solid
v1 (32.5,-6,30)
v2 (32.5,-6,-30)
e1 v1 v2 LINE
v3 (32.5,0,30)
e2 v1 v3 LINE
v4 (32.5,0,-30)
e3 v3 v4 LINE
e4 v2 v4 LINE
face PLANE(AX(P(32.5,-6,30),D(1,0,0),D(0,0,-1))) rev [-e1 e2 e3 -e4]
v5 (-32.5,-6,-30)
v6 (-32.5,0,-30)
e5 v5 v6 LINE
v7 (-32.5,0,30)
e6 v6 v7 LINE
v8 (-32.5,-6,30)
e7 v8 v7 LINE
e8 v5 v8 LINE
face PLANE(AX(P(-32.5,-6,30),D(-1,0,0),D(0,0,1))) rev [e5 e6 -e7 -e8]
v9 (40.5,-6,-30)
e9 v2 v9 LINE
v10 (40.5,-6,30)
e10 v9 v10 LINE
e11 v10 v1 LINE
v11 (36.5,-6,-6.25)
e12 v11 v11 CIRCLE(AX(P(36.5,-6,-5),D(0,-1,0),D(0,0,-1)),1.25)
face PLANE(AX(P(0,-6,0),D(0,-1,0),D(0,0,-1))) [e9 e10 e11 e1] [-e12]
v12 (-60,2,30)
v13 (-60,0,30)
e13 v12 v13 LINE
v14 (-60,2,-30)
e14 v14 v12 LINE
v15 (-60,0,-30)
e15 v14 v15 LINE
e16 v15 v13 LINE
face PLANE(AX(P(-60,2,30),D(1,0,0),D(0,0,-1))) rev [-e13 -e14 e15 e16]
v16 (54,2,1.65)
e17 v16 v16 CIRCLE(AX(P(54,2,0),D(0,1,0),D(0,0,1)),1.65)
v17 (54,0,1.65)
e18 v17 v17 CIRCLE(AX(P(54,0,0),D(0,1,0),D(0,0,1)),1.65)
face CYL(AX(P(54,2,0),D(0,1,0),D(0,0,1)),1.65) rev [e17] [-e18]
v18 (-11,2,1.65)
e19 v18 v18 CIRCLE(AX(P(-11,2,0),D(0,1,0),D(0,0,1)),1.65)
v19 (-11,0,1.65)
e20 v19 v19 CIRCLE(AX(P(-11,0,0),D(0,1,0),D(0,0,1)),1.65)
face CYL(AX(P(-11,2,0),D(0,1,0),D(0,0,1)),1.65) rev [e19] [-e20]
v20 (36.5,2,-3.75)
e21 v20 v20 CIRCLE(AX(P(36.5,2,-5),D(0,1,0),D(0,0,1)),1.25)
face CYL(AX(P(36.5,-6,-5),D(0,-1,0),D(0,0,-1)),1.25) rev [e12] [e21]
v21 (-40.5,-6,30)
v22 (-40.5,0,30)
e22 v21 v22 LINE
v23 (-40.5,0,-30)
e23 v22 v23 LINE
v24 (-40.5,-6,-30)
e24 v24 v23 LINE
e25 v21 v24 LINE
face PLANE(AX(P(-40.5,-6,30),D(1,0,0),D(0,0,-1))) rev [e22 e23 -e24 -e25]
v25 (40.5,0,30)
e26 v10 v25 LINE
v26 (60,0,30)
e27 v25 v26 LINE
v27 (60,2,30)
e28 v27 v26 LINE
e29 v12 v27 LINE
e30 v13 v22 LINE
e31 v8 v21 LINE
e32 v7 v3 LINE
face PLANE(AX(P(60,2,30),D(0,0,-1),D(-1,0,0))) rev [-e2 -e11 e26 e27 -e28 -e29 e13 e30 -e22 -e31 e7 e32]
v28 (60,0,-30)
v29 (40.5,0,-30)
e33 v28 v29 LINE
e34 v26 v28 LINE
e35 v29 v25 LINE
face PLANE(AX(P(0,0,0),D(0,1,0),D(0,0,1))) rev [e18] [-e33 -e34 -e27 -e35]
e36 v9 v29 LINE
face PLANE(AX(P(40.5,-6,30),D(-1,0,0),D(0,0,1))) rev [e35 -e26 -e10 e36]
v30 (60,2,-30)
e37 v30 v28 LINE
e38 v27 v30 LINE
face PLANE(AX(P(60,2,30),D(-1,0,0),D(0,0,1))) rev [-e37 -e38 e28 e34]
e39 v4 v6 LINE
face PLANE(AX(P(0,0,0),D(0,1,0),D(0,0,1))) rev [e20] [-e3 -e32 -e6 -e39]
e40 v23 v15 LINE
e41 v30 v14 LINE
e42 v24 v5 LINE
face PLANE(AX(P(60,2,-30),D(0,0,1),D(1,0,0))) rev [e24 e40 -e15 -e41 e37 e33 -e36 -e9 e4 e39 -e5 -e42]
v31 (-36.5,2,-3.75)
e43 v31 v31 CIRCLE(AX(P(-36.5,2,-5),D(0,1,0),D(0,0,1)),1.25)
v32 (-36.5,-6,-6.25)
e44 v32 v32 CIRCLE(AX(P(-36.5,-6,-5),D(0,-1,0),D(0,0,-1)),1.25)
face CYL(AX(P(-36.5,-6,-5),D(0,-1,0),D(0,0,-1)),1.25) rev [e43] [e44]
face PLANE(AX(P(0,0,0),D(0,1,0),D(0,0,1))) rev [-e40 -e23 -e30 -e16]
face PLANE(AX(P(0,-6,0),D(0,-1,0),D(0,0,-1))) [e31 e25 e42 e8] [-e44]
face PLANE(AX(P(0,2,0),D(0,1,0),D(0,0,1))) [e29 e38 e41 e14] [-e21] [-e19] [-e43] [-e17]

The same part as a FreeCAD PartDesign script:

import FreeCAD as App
import Part
import Sketcher

V = App.Vector
Q = App.Units.Quantity


def add_polygon(sketch, points):
    """Adds a closed chain of lines whose ends are joined by coincident constraints."""
    first, n = sketch.GeometryCount, len(points)
    for a, b in zip(points, points[1:] + points[:1]):
        sketch.addGeometry(Part.LineSegment(App.Vector(*a, 0), App.Vector(*b, 0)), False)
    for i in range(n):
        sketch.addConstraint(Sketcher.Constraint("Coincident", first + i, 2, first + (i + 1) % n, 1))

doc = App.newDocument("Part")
body = doc.addObject("PartDesign::Body", "Body")

sketch1 = body.newObject("Sketcher::SketchObject", "Sketch")
sketch1.AttachmentSupport = (doc.getObject("XZ_Plane"), [""])
sketch1.MapMode = "FlatFace"
add_polygon(sketch1, [(-60, -30), (-60, 30), (60, 30), (60, -30)])
sketch1.addConstraint([
    Sketcher.Constraint("Vertical", 0),
    Sketcher.Constraint("Horizontal", 1),
    Sketcher.Constraint("Vertical", 2),
    Sketcher.Constraint("Horizontal", 3),
    Sketcher.Constraint("Symmetric", 0, 2, 2, 2, -1, 1),
    Sketcher.Constraint("DistanceX", 1, 1, 1, 2, Q("120 mm")),
    Sketcher.Constraint("DistanceY", 0, 1, 0, 2, Q("60 mm")),
])
pad1 = body.newObject("PartDesign::Pad", "Pad")
pad1.Profile = sketch1
pad1.Length = 2
pad1.Reversed = True

sketch2 = body.newObject("Sketcher::SketchObject", "Sketch001")
sketch2.AttachmentSupport = (doc.getObject("XZ_Plane"), [""])
sketch2.MapMode = "FlatFace"
add_polygon(sketch2, [(-40.5, 30), (-40.5, -30), (-32.5, -30), (-32.5, 30)])
add_polygon(sketch2, [(32.5, 30), (32.5, -30), (40.5, -30), (40.5, 30)])
sketch2.addConstraint([
    Sketcher.Constraint("Vertical", 0),
    Sketcher.Constraint("Horizontal", 1),
    Sketcher.Constraint("Vertical", 2),
    Sketcher.Constraint("Horizontal", 3),
    Sketcher.Constraint("Vertical", 4),
    Sketcher.Constraint("Horizontal", 5),
    Sketcher.Constraint("Vertical", 6),
    Sketcher.Constraint("Horizontal", 7),
    Sketcher.Constraint("Symmetric", 2, 2, 4, 2, -1, 1),
    Sketcher.Constraint("Symmetric", 0, 2, 6, 2, -1, 1),
    Sketcher.Constraint("Horizontal", 1, 2, 4, 2),
    Sketcher.Constraint("DistanceX", 1, 1, 1, 2, Q("8 mm")),
    Sketcher.Constraint("DistanceY", 0, 2, 0, 1, Q("60 mm")),
    Sketcher.Constraint("DistanceX", 1, 2, 4, 2, Q("65 mm")),
])
pad2 = body.newObject("PartDesign::Pad", "Pad001")
pad2.Profile = sketch2
pad2.Length = 6

sketch3 = body.newObject("Sketcher::SketchObject", "Sketch002")
sketch3.AttachmentSupport = (doc.getObject("XZ_Plane"), [""])
sketch3.MapMode = "FlatFace"
sketch3.AttachmentOffset = App.Placement(V(0, 0, 6), App.Rotation())
sketch3.addGeometry([
    Part.Circle(V(-36.5, -5, 0), V(0, 0, 1), 1.25),
    Part.Circle(V(36.5, -5, 0), V(0, 0, 1), 1.25),
], False)
sketch3.addConstraint([
    Sketcher.Constraint("Equal", 0, 1),
    Sketcher.Constraint("Symmetric", 0, 3, 1, 3, -2),
    Sketcher.Constraint("Diameter", 0, Q("2.5 mm")),
    Sketcher.Constraint("DistanceY", 0, 3, -1, 1, Q("5 mm")),
    Sketcher.Constraint("DistanceX", 0, 3, 1, 3, Q("73 mm")),
])
doc.recompute()
hole = body.newObject("PartDesign::Hole", "Hole")
hole.Profile = sketch3
hole.ThreadType = "None"
hole.Diameter = 2.5
hole.DepthType = "Dimension"
hole.Depth = 8.5
hole.DrillPoint = "Angled"
hole.DrillPointAngle = 118

sketch4 = body.newObject("Sketcher::SketchObject", "Sketch003")
sketch4.AttachmentSupport = (doc.getObject("XZ_Plane"), [""])
sketch4.MapMode = "FlatFace"
sketch4.AttachmentOffset = App.Placement(V(0, 0, -2), App.Rotation())
sketch4.addGeometry([
    Part.Circle(V(54, 0, 0), V(0, 0, 1), 1.65),
    Part.Circle(V(-11, 0, 0), V(0, 0, 1), 1.65),
], False)
sketch4.addConstraint([
    Sketcher.Constraint("Equal", 0, 1),
    Sketcher.Constraint("PointOnObject", 0, 3, -1),
    Sketcher.Constraint("PointOnObject", 1, 3, -1),
    Sketcher.Constraint("Diameter", 0, Q("3.3 mm")),
    Sketcher.Constraint("DistanceX", -1, 1, 0, 3, Q("54 mm")),
    Sketcher.Constraint("DistanceX", 1, 3, -1, 1, Q("11 mm")),
])
doc.recompute()
hole2 = body.newObject("PartDesign::Hole", "Hole001")
hole2.Profile = sketch4
hole2.ThreadType = "None"
hole2.Diameter = 3.3
hole2.DepthType = "ThroughAll"
hole2.Reversed = True

doc.recompute()
